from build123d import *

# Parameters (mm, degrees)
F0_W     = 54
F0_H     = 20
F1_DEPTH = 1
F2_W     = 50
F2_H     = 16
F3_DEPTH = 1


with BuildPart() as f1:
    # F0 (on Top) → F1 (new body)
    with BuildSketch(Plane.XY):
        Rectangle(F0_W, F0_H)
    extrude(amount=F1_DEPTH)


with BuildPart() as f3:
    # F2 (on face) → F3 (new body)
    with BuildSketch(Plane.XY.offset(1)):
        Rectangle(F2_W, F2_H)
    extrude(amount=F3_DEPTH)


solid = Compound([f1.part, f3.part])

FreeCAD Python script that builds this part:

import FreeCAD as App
import Part
import Sketcher

V = App.Vector


def add_polygon(sketch, points):
    """Adds a closed chain of lines whose ends are joined by coincident constraints."""
    first, n = sketch.GeometryCount, len(points)
    for a, b in zip(points, points[1:] + points[:1]):
        sketch.addGeometry(Part.LineSegment(App.Vector(*a, 0), App.Vector(*b, 0)), False)
    for i in range(n):
        sketch.addConstraint(Sketcher.Constraint("Coincident", first + i, 2, first + (i + 1) % n, 1))

doc = App.newDocument("Part")
body = doc.addObject("PartDesign::Body", "Body")

sketch1 = body.newObject("Sketcher::SketchObject", "Sketch")
sketch1.AttachmentSupport = (doc.getObject("XY_Plane"), [""])
sketch1.MapMode = "FlatFace"
add_polygon(sketch1, [(-27, 10), (-27, -10), (27, -10), (27, 10)])
sketch1.addConstraint(Sketcher.Constraint("Vertical", 0))
sketch1.addConstraint(Sketcher.Constraint("Horizontal", 1))
sketch1.addConstraint(Sketcher.Constraint("Vertical", 2))
sketch1.addConstraint(Sketcher.Constraint("Horizontal", 3))
sketch1.addConstraint(Sketcher.Constraint("Symmetric", 0, 2, 2, 2, -1, 1))
sketch1.addConstraint(Sketcher.Constraint("DistanceX", 1, 1, 1, 2, 54.0))
sketch1.addConstraint(Sketcher.Constraint("DistanceY", 0, 2, 0, 1, 20.0))
pad1 = body.newObject("PartDesign::Pad", "Pad")
pad1.Profile = sketch1
pad1.Length = 1
body2 = doc.addObject("PartDesign::Body", "Body001")

sketch2 = body2.newObject("Sketcher::SketchObject", "Sketch001")
sketch2.AttachmentSupport = (doc.getObject("XY_Plane001"), [""])
sketch2.MapMode = "FlatFace"
sketch2.AttachmentOffset = App.Placement(V(0, 0, 1), App.Rotation())
add_polygon(sketch2, [(-25, 8), (-25, -8), (25, -8), (25, 8)])
sketch2.addConstraint(Sketcher.Constraint("Vertical", 0))
sketch2.addConstraint(Sketcher.Constraint("Horizontal", 1))
sketch2.addConstraint(Sketcher.Constraint("Vertical", 2))
sketch2.addConstraint(Sketcher.Constraint("Horizontal", 3))
sketch2.addConstraint(Sketcher.Constraint("Symmetric", 0, 2, 2, 2, -1, 1))
sketch2.addConstraint(Sketcher.Constraint("DistanceX", 1, 1, 1, 2, 50.0))
sketch2.addConstraint(Sketcher.Constraint("DistanceY", 0, 2, 0, 1, 16.0))
pad2 = body2.newObject("PartDesign::Pad", "Pad001")
pad2.Profile = sketch2
pad2.Length = 1

doc.recompute()
